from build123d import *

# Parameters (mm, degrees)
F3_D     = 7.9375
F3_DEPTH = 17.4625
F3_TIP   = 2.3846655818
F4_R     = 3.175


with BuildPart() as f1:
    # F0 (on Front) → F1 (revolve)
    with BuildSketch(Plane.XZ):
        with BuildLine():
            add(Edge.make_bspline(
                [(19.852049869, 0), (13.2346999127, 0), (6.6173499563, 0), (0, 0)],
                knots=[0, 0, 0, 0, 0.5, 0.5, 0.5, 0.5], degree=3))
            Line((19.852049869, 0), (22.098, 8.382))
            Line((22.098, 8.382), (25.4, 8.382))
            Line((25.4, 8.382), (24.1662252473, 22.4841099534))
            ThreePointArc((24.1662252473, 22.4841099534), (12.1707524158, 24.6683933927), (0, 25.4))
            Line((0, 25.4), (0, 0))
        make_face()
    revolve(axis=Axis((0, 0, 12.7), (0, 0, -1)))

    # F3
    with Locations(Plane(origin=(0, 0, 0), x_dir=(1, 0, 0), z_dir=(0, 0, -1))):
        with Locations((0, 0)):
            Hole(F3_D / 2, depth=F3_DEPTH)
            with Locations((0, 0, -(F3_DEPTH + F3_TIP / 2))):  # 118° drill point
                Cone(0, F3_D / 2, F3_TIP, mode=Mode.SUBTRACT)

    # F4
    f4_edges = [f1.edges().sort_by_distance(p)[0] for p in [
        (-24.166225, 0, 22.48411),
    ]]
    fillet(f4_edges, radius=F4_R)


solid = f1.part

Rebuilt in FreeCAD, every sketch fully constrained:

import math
import FreeCAD as App
import Part
import Sketcher
Q = App.Units.Quantity


def edges_at(feature, points):
    """Names of the edges that pass closest to the given points."""
    edges = feature.Shape.Edges
    near = lambda p: min(range(len(edges)), key=lambda i: edges[i].distToShape(Part.Vertex(*p))[0])
    return sorted({f"Edge{near(p) + 1}" for p in points})

doc = App.newDocument("Part")
body = doc.addObject("PartDesign::Body", "Body")

# Sketch on XZ plane
sketch1 = body.newObject("Sketcher::SketchObject", "Sketch")
sketch1.AttachmentSupport = (doc.getObject("XZ_Plane"), [""])
sketch1.MapMode = "FlatFace"
sketch1.addGeometry(Part.BSplineCurve([App.Vector(19.85205, 0, 0), App.Vector(13.2347, 0, 0), App.Vector(6.61735, 0, 0), App.Vector(0, 0, 0)], [4, 4], [0, 0.5], False, 3, [1, 1, 1, 1], False), False)
sketch1.addGeometry(Part.LineSegment(App.Vector(19.85205, 0, 0), App.Vector(22.098, 8.382, 0)), False)
sketch1.addGeometry(Part.LineSegment(App.Vector(22.098, 8.382, 0), App.Vector(25.4, 8.382, 0)), False)
sketch1.addGeometry(Part.LineSegment(App.Vector(25.4, 8.382, 0), App.Vector(24.166225, 22.48411, 0)), False)
sketch1.addGeometry(Part.ArcOfCircle(Part.Circle(App.Vector(0, -76.2, 0), App.Vector(0, 0, 1), 101.6), math.radians(76.239933), math.radians(90)), False)
sketch1.addGeometry(Part.LineSegment(App.Vector(0, 25.4, 0), App.Vector(0, 0, 0)), False)
sketch1.addConstraint(Sketcher.Constraint("Block", 0))
sketch1.addConstraint(Sketcher.Constraint("Coincident", 0, 1, 1, 1))
sketch1.addConstraint(Sketcher.Constraint("Coincident", 1, 2, 2, 1))
sketch1.addConstraint(Sketcher.Constraint("Coincident", 2, 2, 3, 1))
sketch1.addConstraint(Sketcher.Constraint("Coincident", 3, 2, 4, 1))
sketch1.addConstraint(Sketcher.Constraint("Coincident", 4, 2, 5, 1))
sketch1.addConstraint(Sketcher.Constraint("Coincident", 5, 2, 0, 2))
sketch1.addConstraint(Sketcher.Constraint("Horizontal", 2))
sketch1.addConstraint(Sketcher.Constraint("Vertical", 5))
sketch1.addConstraint(Sketcher.Constraint("PointOnObject", 4, 3, -2))
sketch1.addConstraint(Sketcher.Constraint("Radius", 4, Q("4 in")))
sketch1.addConstraint(Sketcher.Constraint("DistanceY", 5, 2, 5, 1, Q("1 in")))
sketch1.addConstraint(Sketcher.Constraint("DistanceX", -1, 1, 2, 2, Q("1 in")))
sketch1.addConstraint(Sketcher.Constraint("DistanceX", 2, 1, 2, 2, Q("0.13 in")))
sketch1.addConstraint(Sketcher.Constraint("DistanceY", -1, 1, 1, 2, Q("0.33 in")))
sketch1.addConstraint(Sketcher.Constraint("DistanceY", -1, 1, 3, 2, 22.48411))
revolution = body.newObject("PartDesign::Revolution", "Revolution")
revolution.Profile = sketch1
revolution.ReferenceAxis = (sketch1, ["V_Axis"])
revolution.Angle = 360

# Sketch on XY plane
sketch2 = body.newObject("Sketcher::SketchObject", "Sketch001")
sketch2.AttachmentSupport = (doc.getObject("XY_Plane"), [""])
sketch2.MapMode = "FlatFace"
sketch2.addGeometry(Part.Circle(App.Vector(0, 0, 0), App.Vector(0, 0, 1), 4), False)
sketch2.addConstraint(Sketcher.Constraint("Coincident", 0, 3, -1, 1))
sketch2.addConstraint(Sketcher.Constraint("Diameter", 0, Q("0.3125 in")))
doc.recompute()
hole = body.newObject("PartDesign::Hole", "Hole")
hole.Profile = sketch2
hole.ThreadType = "None"
hole.Diameter = Q("0.3125 in")
hole.DepthType = "Dimension"
hole.Depth = Q("0.6875 in")
hole.DrillPoint = "Angled"
hole.DrillPointAngle = 118
hole.Reversed = True
doc.recompute()

fillet = body.newObject("PartDesign::Fillet", "Fillet")
fillet.Base = (hole, edges_at(hole, [(-24.166, 0, 22.484)]))
fillet.Radius = Q("0.125 in")

doc.recompute()
